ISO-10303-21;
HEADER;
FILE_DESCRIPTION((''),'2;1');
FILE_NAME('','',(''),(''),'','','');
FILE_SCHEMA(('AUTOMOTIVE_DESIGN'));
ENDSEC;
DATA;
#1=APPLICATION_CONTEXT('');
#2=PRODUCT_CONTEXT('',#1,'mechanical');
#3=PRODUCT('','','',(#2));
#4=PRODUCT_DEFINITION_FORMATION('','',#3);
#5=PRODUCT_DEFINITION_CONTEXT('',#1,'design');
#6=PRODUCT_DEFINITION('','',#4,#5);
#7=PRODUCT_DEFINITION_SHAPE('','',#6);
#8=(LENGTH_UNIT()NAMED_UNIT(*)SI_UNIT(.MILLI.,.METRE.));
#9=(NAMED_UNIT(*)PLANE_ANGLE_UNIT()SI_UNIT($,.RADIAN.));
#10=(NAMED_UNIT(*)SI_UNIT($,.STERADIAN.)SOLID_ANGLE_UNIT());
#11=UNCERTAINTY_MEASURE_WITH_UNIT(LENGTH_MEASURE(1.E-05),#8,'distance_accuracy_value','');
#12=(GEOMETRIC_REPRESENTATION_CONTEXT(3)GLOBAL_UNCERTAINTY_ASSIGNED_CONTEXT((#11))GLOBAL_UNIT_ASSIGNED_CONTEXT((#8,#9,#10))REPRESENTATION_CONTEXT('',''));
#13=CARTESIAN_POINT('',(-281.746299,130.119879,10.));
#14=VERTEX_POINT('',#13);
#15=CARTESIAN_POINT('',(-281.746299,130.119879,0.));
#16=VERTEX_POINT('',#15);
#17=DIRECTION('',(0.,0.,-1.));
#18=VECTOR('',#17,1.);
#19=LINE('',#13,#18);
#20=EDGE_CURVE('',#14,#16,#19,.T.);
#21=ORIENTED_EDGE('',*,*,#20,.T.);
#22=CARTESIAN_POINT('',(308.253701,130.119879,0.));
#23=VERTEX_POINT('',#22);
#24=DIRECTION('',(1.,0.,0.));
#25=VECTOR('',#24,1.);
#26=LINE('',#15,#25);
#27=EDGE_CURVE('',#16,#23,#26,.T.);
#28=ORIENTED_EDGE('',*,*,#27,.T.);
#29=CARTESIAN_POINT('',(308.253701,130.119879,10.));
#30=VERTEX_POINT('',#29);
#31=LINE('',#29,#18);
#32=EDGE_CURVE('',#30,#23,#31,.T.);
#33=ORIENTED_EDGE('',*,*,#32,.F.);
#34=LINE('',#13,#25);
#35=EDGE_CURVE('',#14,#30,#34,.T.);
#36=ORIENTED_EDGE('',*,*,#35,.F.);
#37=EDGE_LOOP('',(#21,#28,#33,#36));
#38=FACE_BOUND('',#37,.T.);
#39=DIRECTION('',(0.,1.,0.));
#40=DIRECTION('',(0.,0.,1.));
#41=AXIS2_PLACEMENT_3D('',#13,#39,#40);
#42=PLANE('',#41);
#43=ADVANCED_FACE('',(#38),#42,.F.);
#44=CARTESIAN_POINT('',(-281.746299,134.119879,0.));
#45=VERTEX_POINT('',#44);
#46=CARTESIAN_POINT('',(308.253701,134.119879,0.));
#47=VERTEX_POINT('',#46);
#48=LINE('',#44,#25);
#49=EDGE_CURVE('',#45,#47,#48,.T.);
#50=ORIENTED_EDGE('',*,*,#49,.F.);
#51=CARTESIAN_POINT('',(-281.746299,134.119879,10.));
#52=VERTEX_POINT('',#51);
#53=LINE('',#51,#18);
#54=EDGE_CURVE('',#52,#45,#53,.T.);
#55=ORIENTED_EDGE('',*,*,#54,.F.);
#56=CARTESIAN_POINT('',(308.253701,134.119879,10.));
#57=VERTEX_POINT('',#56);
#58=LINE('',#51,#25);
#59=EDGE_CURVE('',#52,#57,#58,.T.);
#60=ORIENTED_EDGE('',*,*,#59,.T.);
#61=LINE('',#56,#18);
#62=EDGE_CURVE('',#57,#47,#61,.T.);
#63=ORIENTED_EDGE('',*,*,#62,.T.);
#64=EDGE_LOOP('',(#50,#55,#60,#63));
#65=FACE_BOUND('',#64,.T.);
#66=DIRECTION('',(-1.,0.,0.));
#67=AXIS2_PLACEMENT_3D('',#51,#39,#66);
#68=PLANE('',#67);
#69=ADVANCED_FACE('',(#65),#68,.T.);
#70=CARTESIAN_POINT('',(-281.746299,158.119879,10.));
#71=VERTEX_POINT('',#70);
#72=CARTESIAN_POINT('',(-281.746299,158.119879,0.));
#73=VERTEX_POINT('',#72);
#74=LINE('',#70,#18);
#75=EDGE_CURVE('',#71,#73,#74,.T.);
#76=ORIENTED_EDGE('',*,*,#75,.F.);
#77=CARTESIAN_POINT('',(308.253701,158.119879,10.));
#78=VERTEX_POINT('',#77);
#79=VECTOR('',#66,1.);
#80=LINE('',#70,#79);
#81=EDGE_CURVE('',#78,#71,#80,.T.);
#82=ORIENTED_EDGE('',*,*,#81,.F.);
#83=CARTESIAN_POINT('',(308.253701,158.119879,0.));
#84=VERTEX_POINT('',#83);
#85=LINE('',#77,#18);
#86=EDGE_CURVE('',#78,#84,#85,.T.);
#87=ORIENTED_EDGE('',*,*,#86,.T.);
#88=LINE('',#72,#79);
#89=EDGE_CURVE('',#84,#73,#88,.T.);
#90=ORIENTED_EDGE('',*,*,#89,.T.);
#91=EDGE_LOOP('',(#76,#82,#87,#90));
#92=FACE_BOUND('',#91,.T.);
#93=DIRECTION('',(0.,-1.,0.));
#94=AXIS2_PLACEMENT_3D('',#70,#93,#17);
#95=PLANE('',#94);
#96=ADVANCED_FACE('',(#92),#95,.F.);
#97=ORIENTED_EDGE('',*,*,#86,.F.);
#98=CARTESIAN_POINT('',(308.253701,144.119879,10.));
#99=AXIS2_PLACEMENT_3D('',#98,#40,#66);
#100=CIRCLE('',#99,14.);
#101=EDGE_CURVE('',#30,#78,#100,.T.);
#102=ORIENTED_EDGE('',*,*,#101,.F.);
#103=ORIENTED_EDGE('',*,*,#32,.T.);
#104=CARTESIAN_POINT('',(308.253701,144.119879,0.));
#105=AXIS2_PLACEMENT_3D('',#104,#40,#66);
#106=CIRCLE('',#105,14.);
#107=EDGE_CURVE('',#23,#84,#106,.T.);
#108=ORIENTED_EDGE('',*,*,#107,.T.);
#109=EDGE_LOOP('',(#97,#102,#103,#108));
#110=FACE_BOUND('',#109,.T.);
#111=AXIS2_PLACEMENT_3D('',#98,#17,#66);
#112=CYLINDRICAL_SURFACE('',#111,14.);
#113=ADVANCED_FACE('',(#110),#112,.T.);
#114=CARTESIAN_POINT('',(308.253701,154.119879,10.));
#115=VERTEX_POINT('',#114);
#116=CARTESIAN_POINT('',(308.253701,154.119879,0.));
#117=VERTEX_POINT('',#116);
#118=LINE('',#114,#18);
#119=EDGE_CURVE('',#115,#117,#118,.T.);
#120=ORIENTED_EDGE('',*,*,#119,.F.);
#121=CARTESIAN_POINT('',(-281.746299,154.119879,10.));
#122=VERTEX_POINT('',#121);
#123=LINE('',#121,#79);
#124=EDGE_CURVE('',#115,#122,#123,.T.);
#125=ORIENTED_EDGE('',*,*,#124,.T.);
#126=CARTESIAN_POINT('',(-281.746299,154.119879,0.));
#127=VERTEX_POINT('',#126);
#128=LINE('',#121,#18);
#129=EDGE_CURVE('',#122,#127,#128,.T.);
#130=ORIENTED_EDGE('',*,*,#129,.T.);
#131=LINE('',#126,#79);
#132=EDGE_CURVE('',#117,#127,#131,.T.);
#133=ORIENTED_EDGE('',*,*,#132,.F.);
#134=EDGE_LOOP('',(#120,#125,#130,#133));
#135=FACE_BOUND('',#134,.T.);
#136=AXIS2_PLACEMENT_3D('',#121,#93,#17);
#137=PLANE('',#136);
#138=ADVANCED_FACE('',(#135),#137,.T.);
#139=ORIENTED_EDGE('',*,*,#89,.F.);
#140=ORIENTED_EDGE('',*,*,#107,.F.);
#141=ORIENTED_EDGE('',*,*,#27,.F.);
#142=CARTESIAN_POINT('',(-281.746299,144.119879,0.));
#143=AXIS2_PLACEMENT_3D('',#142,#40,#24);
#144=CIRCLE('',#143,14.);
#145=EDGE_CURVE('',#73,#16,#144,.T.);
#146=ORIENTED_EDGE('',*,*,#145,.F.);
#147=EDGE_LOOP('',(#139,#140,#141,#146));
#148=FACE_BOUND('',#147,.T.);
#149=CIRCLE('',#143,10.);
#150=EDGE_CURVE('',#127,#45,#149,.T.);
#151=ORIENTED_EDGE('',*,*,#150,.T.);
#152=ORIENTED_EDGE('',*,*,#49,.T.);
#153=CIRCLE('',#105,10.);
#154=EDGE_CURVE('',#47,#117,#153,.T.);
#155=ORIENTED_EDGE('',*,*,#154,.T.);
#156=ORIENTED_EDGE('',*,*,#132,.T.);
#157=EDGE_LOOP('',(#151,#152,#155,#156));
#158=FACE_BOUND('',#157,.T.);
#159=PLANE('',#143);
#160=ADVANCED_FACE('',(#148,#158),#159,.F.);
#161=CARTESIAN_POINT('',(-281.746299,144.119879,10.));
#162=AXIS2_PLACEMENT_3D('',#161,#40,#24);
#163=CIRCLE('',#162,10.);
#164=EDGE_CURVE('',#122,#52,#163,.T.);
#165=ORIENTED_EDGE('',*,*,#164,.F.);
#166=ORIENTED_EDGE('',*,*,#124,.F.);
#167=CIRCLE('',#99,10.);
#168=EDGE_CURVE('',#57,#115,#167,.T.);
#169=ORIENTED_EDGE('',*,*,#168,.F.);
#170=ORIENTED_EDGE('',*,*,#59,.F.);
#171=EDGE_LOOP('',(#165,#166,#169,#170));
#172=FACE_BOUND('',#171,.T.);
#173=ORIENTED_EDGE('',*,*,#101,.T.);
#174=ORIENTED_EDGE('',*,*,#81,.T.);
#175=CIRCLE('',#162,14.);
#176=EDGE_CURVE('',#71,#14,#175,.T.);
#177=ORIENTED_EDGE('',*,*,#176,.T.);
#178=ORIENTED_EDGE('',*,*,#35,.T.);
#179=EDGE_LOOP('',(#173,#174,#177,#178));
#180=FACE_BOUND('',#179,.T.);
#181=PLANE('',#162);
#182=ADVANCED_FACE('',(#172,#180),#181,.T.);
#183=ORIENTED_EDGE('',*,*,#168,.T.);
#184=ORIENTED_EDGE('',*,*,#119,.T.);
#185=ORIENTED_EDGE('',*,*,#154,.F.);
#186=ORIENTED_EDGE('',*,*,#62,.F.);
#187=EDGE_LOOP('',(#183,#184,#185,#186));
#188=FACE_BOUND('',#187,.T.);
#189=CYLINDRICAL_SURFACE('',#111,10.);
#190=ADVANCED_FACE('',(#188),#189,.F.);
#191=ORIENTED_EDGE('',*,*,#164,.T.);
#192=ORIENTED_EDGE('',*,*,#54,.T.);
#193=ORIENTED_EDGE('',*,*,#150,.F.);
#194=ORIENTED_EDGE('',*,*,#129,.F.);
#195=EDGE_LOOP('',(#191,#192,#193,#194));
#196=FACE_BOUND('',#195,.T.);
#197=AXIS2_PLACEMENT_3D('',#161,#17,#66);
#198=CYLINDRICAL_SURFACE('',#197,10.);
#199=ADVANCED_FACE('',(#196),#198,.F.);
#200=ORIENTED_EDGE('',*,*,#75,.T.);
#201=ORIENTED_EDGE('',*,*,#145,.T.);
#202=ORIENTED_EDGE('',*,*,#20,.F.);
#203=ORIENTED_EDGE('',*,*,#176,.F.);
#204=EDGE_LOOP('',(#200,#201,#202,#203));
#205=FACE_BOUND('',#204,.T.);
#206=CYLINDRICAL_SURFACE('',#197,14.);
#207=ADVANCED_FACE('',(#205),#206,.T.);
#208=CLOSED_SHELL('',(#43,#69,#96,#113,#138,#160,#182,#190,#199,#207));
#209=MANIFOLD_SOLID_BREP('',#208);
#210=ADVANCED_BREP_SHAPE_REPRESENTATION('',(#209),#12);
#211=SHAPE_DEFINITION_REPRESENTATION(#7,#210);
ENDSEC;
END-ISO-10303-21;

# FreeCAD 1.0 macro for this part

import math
import FreeCAD as App
import Part
import Sketcher
from FreeCAD import Vector
Q = App.Units.Quantity

doc = App.newDocument("Part")
body = doc.addObject("PartDesign::Body", "Body")

sketch1 = doc.addObject("Sketcher::SketchObject", "Sketch")
body.addObject(sketch1)
sketch1.AttachmentSupport = (doc.XY_Plane, [""])
sketch1.MapMode = "FlatFace"
sketch1.addGeometry([
    Part.LineSegment(Vector(308.253701, 158.119879, 0), Vector(-281.746299, 158.119879, 0)),
    Part.ArcOfCircle(Part.Circle(Vector(-281.746299, 144.119879, 0), Vector(0, 0, 1), 14), math.radians(90), math.radians(270)),
    Part.LineSegment(Vector(-281.746299, 130.119879, 0), Vector(308.253701, 130.119879, 0)),
    Part.ArcOfCircle(Part.Circle(Vector(308.253701, 144.119879, 0), Vector(0, 0, 1), 14), math.radians(-90), math.radians(90)),
    Part.LineSegment(Vector(-281.746299, 154.119879, 0), Vector(308.253701, 154.119879, 0)),
    Part.ArcOfCircle(Part.Circle(Vector(308.253701, 144.119879, 0), Vector(0, 0, 1), 10), math.radians(-90), math.radians(90)),
    Part.LineSegment(Vector(308.253701, 134.119879, 0), Vector(-281.746299, 134.119879, 0)),
    Part.ArcOfCircle(Part.Circle(Vector(-281.746299, 144.119879, 0), Vector(0, 0, 1), 10), math.radians(90), math.radians(270)),
], False)
sketch1.addConstraint([
    Sketcher.Constraint("Tangent", 0, 2, 1, 1),
    Sketcher.Constraint("Tangent", 1, 2, 2, 1),
    Sketcher.Constraint("Tangent", 2, 2, 3, 1),
    Sketcher.Constraint("Tangent", 3, 2, 0, 1),
    Sketcher.Constraint("Tangent", 4, 2, 5, 2),
    Sketcher.Constraint("Tangent", 5, 1, 6, 1),
    Sketcher.Constraint("Tangent", 6, 2, 7, 2),
    Sketcher.Constraint("Tangent", 7, 1, 4, 1),
    Sketcher.Constraint("Horizontal", 0),
    Sketcher.Constraint("Horizontal", 2),
    Sketcher.Constraint("Horizontal", 4),
    Sketcher.Constraint("Horizontal", 6),
    Sketcher.Constraint("Coincident", 5, 3, 3, 3),
    Sketcher.Constraint("Vertical", 7, 3, 0, 2),
    Sketcher.Constraint("Radius", 1, Q("14 mm")),
    Sketcher.Constraint("Radius", 5, Q("10 mm")),
    Sketcher.Constraint("DistanceX", 0, 2, 0, 1, Q("590 mm")),
    Sketcher.Constraint("DistanceX", 1, 3, -1, 1, Q("281.746299 mm")),
    Sketcher.Constraint("DistanceY", -1, 1, 1, 3, Q("144.119879 mm")),
])
pad1 = doc.addObject("PartDesign::Pad", "Pad")
body.addObject(pad1)
pad1.Profile = sketch1
pad1.Length = 10

doc.recompute()
